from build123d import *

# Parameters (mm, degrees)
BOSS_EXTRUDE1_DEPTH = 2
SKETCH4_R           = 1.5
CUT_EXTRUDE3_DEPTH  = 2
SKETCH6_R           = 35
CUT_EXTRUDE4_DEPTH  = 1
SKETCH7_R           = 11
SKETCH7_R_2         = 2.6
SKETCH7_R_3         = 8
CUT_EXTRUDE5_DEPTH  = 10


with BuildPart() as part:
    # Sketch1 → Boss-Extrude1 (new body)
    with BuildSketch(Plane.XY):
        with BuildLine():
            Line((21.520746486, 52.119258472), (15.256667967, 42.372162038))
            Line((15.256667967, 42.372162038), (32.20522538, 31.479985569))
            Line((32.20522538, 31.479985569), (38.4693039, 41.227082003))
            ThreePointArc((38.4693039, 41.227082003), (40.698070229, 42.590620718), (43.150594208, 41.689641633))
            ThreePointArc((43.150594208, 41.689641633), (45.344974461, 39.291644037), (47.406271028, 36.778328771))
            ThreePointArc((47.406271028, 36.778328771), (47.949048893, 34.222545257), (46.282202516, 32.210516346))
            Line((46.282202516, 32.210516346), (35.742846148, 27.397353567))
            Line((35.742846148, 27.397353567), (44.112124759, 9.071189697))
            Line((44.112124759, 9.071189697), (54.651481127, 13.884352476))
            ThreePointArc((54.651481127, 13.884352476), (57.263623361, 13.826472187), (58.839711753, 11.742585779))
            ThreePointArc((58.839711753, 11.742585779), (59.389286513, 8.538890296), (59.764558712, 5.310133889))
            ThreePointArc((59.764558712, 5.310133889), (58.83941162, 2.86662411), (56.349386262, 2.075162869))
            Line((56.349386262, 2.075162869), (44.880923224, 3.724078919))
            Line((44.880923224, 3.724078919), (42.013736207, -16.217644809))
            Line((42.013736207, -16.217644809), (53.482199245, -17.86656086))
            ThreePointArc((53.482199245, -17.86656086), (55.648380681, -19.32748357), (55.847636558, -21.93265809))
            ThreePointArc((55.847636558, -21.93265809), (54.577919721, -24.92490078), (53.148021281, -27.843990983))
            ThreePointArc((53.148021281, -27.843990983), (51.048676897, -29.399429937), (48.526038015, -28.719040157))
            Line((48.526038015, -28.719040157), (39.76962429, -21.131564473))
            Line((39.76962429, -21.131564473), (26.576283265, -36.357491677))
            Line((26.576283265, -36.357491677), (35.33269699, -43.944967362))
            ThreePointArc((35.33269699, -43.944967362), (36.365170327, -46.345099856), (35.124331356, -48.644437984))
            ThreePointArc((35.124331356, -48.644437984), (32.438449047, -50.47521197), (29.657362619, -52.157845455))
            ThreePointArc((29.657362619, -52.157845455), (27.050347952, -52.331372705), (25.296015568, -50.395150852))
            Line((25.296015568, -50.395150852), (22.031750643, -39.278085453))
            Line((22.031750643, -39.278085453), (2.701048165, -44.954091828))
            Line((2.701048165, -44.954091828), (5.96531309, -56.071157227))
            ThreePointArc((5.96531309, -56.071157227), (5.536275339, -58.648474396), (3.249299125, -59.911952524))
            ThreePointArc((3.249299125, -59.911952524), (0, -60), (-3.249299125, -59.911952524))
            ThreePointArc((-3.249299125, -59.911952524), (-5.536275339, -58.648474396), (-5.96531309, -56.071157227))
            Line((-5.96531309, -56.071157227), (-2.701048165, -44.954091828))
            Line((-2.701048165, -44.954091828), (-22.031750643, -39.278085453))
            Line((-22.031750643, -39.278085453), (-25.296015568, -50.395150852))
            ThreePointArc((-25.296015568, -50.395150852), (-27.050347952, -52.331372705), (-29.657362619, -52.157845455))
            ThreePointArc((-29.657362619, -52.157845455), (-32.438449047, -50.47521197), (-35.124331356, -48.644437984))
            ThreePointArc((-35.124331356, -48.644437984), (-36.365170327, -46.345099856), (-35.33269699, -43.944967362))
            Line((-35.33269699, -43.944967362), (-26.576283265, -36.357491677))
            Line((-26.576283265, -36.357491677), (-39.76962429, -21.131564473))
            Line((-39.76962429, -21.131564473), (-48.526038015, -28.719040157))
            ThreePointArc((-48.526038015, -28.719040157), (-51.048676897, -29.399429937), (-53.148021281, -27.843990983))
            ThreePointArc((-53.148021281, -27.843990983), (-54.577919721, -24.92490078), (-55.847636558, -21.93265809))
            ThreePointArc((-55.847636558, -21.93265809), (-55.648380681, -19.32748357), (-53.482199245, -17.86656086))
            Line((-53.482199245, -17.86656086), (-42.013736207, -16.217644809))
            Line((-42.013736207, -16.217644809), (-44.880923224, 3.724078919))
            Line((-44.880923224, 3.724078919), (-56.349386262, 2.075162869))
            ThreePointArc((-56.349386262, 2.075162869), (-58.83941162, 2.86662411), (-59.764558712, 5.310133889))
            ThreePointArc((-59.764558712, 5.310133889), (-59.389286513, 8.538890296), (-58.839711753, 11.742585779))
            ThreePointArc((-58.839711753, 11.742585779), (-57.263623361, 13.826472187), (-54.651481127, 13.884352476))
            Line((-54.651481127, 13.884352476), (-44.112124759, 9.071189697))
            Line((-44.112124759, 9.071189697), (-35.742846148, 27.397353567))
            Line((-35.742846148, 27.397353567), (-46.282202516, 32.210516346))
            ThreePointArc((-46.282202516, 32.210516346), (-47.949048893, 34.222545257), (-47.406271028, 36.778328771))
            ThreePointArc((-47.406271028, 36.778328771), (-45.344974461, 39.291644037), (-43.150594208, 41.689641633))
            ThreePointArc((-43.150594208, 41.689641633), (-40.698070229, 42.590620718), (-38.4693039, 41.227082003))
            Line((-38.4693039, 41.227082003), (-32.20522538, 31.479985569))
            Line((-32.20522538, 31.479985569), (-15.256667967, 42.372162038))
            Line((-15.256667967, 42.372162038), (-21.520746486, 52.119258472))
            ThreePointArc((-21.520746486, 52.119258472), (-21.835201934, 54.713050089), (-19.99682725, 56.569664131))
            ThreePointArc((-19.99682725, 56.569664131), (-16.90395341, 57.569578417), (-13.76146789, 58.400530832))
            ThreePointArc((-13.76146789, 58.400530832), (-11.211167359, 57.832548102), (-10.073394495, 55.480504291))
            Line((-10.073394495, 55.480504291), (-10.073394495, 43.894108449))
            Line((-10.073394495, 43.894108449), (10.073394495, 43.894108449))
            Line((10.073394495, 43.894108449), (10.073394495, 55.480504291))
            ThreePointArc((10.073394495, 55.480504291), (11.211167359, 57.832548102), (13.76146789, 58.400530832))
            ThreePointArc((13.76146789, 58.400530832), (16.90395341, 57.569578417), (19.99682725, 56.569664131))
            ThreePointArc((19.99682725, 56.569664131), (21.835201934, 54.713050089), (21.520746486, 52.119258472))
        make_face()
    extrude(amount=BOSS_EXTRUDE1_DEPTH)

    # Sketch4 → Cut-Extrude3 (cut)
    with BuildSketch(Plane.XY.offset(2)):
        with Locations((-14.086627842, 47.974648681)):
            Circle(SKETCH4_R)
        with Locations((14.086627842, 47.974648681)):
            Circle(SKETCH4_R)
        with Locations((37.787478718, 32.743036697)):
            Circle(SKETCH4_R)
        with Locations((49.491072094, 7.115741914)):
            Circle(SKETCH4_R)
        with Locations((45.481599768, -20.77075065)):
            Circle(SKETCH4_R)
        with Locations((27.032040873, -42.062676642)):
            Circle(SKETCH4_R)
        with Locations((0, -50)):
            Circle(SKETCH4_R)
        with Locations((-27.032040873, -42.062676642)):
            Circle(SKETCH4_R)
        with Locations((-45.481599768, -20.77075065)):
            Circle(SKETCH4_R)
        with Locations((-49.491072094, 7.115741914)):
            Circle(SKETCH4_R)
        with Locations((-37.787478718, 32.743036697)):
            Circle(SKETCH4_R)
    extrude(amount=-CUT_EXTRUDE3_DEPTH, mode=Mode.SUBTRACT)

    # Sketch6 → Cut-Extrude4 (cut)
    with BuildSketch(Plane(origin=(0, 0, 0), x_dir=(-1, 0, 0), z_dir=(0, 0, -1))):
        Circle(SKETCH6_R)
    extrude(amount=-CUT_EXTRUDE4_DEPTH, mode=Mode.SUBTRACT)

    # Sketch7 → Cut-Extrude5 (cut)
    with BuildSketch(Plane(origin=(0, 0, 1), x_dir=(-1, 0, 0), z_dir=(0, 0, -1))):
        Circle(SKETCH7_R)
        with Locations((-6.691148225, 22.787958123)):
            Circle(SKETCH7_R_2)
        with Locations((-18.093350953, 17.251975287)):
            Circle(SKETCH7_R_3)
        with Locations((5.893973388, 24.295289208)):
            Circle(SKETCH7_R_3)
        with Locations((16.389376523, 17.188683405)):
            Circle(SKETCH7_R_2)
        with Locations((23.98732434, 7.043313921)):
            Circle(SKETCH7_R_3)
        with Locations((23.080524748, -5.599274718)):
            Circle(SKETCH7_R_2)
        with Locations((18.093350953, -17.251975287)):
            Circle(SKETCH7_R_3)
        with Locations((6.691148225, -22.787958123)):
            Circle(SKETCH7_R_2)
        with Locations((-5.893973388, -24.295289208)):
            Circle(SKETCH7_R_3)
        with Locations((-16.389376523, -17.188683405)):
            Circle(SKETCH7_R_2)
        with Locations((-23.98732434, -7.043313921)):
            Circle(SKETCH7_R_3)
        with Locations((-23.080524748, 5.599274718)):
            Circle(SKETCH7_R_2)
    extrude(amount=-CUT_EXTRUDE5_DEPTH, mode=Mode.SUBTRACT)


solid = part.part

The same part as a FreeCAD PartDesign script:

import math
import FreeCAD as App
import Part
import Sketcher
from FreeCAD import Vector
Q = App.Units.Quantity

doc = App.newDocument("Part")
body = doc.addObject("PartDesign::Body", "Body")

sketch1 = doc.addObject("Sketcher::SketchObject", "Sketch")
body.addObject(sketch1)
sketch1.AttachmentSupport = (doc.XY_Plane, [""])
sketch1.MapMode = "FlatFace"
sketch1.addGeometry(Part.LineSegment(Vector(15.3, 42.4, 0), Vector(21.5, 52.1, 0)), False)
sketch1.addGeometry(Part.ArcOfCircle(Part.Circle(Vector(19, 53.7, 0), Vector(0, 0, 1), 3), math.radians(-33), math.radians(71)), False)
sketch1.addGeometry(Part.ArcOfCircle(Part.Circle(Vector(0, 0, 0), Vector(0, 0, 1), 60), math.radians(70.53), math.radians(76.74)), False)
sketch1.addGeometry(Part.ArcOfCircle(Part.Circle(Vector(13.1, 55.5, 0), Vector(0, 0, 1), 3), math.radians(77), math.radians(180)), False)
sketch1.addGeometry(Part.LineSegment(Vector(10.1, 55.5, 0), Vector(10.1, 43.9, 0)), False)
sketch1.addGeometry(Part.LineSegment(Vector(10.1, 43.9, 0), Vector(-10.1, 43.9, 0)), False)
sketch1.addGeometry(Part.LineSegment(Vector(-10.1, 43.9, 0), Vector(-10.1, 55.5, 0)), False)
sketch1.addGeometry(Part.ArcOfCircle(Part.Circle(Vector(-13.1, 55.5, 0), Vector(0, 0, 1), 3), math.radians(0), math.radians(103)), False)
sketch1.addGeometry(Part.ArcOfCircle(Part.Circle(Vector(0, 0, 0), Vector(0, 0, 1), 60), math.radians(103.26), math.radians(109.47)), False)
sketch1.addGeometry(Part.ArcOfCircle(Part.Circle(Vector(-19, 53.7, 0), Vector(0, 0, 1), 3), math.radians(109), math.radians(213)), False)
sketch1.addGeometry(Part.LineSegment(Vector(-21.5, 52.1, 0), Vector(-15.3, 42.4, 0)), False)
sketch1.addGeometry(Part.LineSegment(Vector(-15.3, 42.4, 0), Vector(-32.2, 31.5, 0)), False)
sketch1.addGeometry(Part.LineSegment(Vector(-32.2, 31.5, 0), Vector(-38.5, 41.2, 0)), False)
sketch1.addGeometry(Part.ArcOfCircle(Part.Circle(Vector(-41, 39.6, 0), Vector(0, 0, 1), 3), math.radians(33), math.radians(136)), False)
sketch1.addGeometry(Part.ArcOfCircle(Part.Circle(Vector(0, 0, 0), Vector(0, 0, 1), 60), math.radians(135.99), math.radians(142.2)), False)
sketch1.addGeometry(Part.ArcOfCircle(Part.Circle(Vector(-45, 34.9, 0), Vector(0, 0, 1), 3), math.radians(142), math.radians(245)), False)
sketch1.addGeometry(Part.LineSegment(Vector(-46.3, 32.2, 0), Vector(-35.7, 27.4, 0)), False)
sketch1.addGeometry(Part.LineSegment(Vector(-35.7, 27.4, 0), Vector(-44.1, 9.1, 0)), False)
sketch1.addGeometry(Part.LineSegment(Vector(-44.1, 9.1, 0), Vector(-54.7, 13.9, 0)), False)
sketch1.addGeometry(Part.ArcOfCircle(Part.Circle(Vector(-55.9, 11.2, 0), Vector(0, 0, 1), 3), math.radians(65), math.radians(169)), False)
sketch1.addGeometry(Part.ArcOfCircle(Part.Circle(Vector(0, 0, 0), Vector(0, 0, 1), 60), math.radians(168.71), math.radians(174.92)), False)
sketch1.addGeometry(Part.ArcOfCircle(Part.Circle(Vector(-56.8, 5, 0), Vector(0, 0, 1), 3), math.radians(175), math.radians(278)), False)
sketch1.addGeometry(Part.LineSegment(Vector(-56.3, 2.1, 0), Vector(-44.9, 3.7, 0)), False)
sketch1.addGeometry(Part.LineSegment(Vector(-44.9, 3.7, 0), Vector(-42, -16.2, 0)), False)
sketch1.addGeometry(Part.LineSegment(Vector(-42, -16.2, 0), Vector(-53.5, -17.9, 0)), False)
sketch1.addGeometry(Part.ArcOfCircle(Part.Circle(Vector(-53.1, -20.8, 0), Vector(0, 0, 1), 3), math.radians(98), math.radians(201)), False)
sketch1.addGeometry(Part.ArcOfCircle(Part.Circle(Vector(0, 0, 0), Vector(0, 0, 1), 60), math.radians(-158.56), math.radians(-152.35)), False)
sketch1.addGeometry(Part.ArcOfCircle(Part.Circle(Vector(-50.5, -26.5, 0), Vector(0, 0, 1), 3), math.radians(-152), math.radians(-49)), False)
sketch1.addGeometry(Part.LineSegment(Vector(-48.5, -28.7, 0), Vector(-39.8, -21.1, 0)), False)
sketch1.addGeometry(Part.LineSegment(Vector(-39.8, -21.1, 0), Vector(-26.6, -36.4, 0)), False)
sketch1.addGeometry(Part.LineSegment(Vector(-26.6, -36.4, 0), Vector(-35.3, -43.9, 0)), False)
sketch1.addGeometry(Part.ArcOfCircle(Part.Circle(Vector(-33.4, -46.2, 0), Vector(0, 0, 1), 3), math.radians(131), math.radians(234)), False)
sketch1.addGeometry(Part.ArcOfCircle(Part.Circle(Vector(0, 0, 0), Vector(0, 0, 1), 60), math.radians(-125.83), math.radians(-119.62)), False)
sketch1.addGeometry(Part.ArcOfCircle(Part.Circle(Vector(-28.2, -49.5, 0), Vector(0, 0, 1), 3), math.radians(-120), math.radians(-16)), False)
sketch1.addGeometry(Part.LineSegment(Vector(-25.3, -50.4, 0), Vector(-22, -39.3, 0)), False)
sketch1.addGeometry(Part.LineSegment(Vector(-22, -39.3, 0), Vector(-2.7, -45, 0)), False)
sketch1.addGeometry(Part.LineSegment(Vector(-2.7, -45, 0), Vector(-6, -56.1, 0)), False)
sketch1.addGeometry(Part.ArcOfCircle(Part.Circle(Vector(-3.1, -56.9, 0), Vector(0, 0, 1), 3), math.radians(164), math.radians(267)), False)
sketch1.addGeometry(Part.ArcOfCircle(Part.Circle(Vector(0, 0, 0), Vector(0, 0, 1), 60), math.radians(-93.1), math.radians(-86.9)), False)
sketch1.addGeometry(Part.ArcOfCircle(Part.Circle(Vector(3.1, -56.9, 0), Vector(0, 0, 1), 3), math.radians(-87), math.radians(16)), False)
sketch1.addGeometry(Part.LineSegment(Vector(6, -56.1, 0), Vector(2.7, -45, 0)), False)
sketch1.addGeometry(Part.LineSegment(Vector(2.7, -45, 0), Vector(22, -39.3, 0)), False)
sketch1.addGeometry(Part.LineSegment(Vector(22, -39.3, 0), Vector(25.3, -50.4, 0)), False)
sketch1.addGeometry(Part.ArcOfCircle(Part.Circle(Vector(28.2, -49.5, 0), Vector(0, 0, 1), 3), math.radians(-164), math.radians(-60)), False)
sketch1.addGeometry(Part.ArcOfCircle(Part.Circle(Vector(0, 0, 0), Vector(0, 0, 1), 60), math.radians(-60.38), math.radians(-54.17)), False)
sketch1.addGeometry(Part.ArcOfCircle(Part.Circle(Vector(33.4, -46.2, 0), Vector(0, 0, 1), 3), math.radians(-54), math.radians(49)), False)
sketch1.addGeometry(Part.LineSegment(Vector(35.3, -43.9, 0), Vector(26.6, -36.4, 0)), False)
sketch1.addGeometry(Part.LineSegment(Vector(26.6, -36.4, 0), Vector(39.8, -21.1, 0)), False)
sketch1.addGeometry(Part.LineSegment(Vector(39.8, -21.1, 0), Vector(48.5, -28.7, 0)), False)
sketch1.addGeometry(Part.ArcOfCircle(Part.Circle(Vector(50.5, -26.5, 0), Vector(0, 0, 1), 3), math.radians(-131), math.radians(-28)), False)
sketch1.addGeometry(Part.ArcOfCircle(Part.Circle(Vector(0, 0, 0), Vector(0, 0, 1), 60), math.radians(-27.65), math.radians(-21.44)), False)
sketch1.addGeometry(Part.ArcOfCircle(Part.Circle(Vector(53.1, -20.8, 0), Vector(0, 0, 1), 3), math.radians(-21), math.radians(82)), False)
sketch1.addGeometry(Part.LineSegment(Vector(53.5, -17.9, 0), Vector(42, -16.2, 0)), False)
sketch1.addGeometry(Part.LineSegment(Vector(42, -16.2, 0), Vector(44.9, 3.7, 0)), False)
sketch1.addGeometry(Part.LineSegment(Vector(44.9, 3.7, 0), Vector(56.3, 2.1, 0)), False)
sketch1.addGeometry(Part.ArcOfCircle(Part.Circle(Vector(56.8, 5, 0), Vector(0, 0, 1), 3), math.radians(-98), math.radians(5)), False)
sketch1.addGeometry(Part.ArcOfCircle(Part.Circle(Vector(0, 0, 0), Vector(0, 0, 1), 60), math.radians(5.08), math.radians(11.29)), False)
sketch1.addGeometry(Part.ArcOfCircle(Part.Circle(Vector(55.9, 11.2, 0), Vector(0, 0, 1), 3), math.radians(11), math.radians(115)), False)
sketch1.addGeometry(Part.LineSegment(Vector(54.7, 13.9, 0), Vector(44.1, 9.1, 0)), False)
sketch1.addGeometry(Part.LineSegment(Vector(44.1, 9.1, 0), Vector(35.7, 27.4, 0)), False)
sketch1.addGeometry(Part.LineSegment(Vector(35.7, 27.4, 0), Vector(46.3, 32.2, 0)), False)
sketch1.addGeometry(Part.ArcOfCircle(Part.Circle(Vector(45, 34.9, 0), Vector(0, 0, 1), 3), math.radians(-65), math.radians(38)), False)
sketch1.addGeometry(Part.ArcOfCircle(Part.Circle(Vector(0, 0, 0), Vector(0, 0, 1), 60), math.radians(37.8), math.radians(44.01)), False)
sketch1.addGeometry(Part.ArcOfCircle(Part.Circle(Vector(41, 39.6, 0), Vector(0, 0, 1), 3), math.radians(44), math.radians(147)), False)
sketch1.addGeometry(Part.LineSegment(Vector(38.5, 41.2, 0), Vector(32.2, 31.5, 0)), False)
sketch1.addGeometry(Part.LineSegment(Vector(32.2, 31.5, 0), Vector(15.3, 42.4, 0)), False)
sketch1.addConstraint(Sketcher.Constraint("Tangent", 0, 2, 1, 1))
sketch1.addConstraint(Sketcher.Constraint("Tangent", 1, 2, 2, 1))
sketch1.addConstraint(Sketcher.Constraint("Tangent", 2, 2, 3, 1))
sketch1.addConstraint(Sketcher.Constraint("Tangent", 3, 2, 4, 1))
sketch1.addConstraint(Sketcher.Constraint("Coincident", 4, 2, 5, 1))
sketch1.addConstraint(Sketcher.Constraint("Coincident", 5, 2, 6, 1))
sketch1.addConstraint(Sketcher.Constraint("Tangent", 6, 2, 7, 1))
sketch1.addConstraint(Sketcher.Constraint("Tangent", 7, 2, 8, 1))
sketch1.addConstraint(Sketcher.Constraint("Tangent", 8, 2, 9, 1))
sketch1.addConstraint(Sketcher.Constraint("Tangent", 9, 2, 10, 1))
sketch1.addConstraint(Sketcher.Constraint("Coincident", 10, 2, 11, 1))
sketch1.addConstraint(Sketcher.Constraint("Coincident", 11, 2, 12, 1))
sketch1.addConstraint(Sketcher.Constraint("Tangent", 12, 2, 13, 1))
sketch1.addConstraint(Sketcher.Constraint("Tangent", 13, 2, 14, 1))
sketch1.addConstraint(Sketcher.Constraint("Tangent", 14, 2, 15, 1))
sketch1.addConstraint(Sketcher.Constraint("Tangent", 15, 2, 16, 1))
sketch1.addConstraint(Sketcher.Constraint("Coincident", 16, 2, 17, 1))
sketch1.addConstraint(Sketcher.Constraint("Coincident", 17, 2, 18, 1))
sketch1.addConstraint(Sketcher.Constraint("Tangent", 18, 2, 19, 1))
sketch1.addConstraint(Sketcher.Constraint("Tangent", 19, 2, 20, 1))
sketch1.addConstraint(Sketcher.Constraint("Tangent", 20, 2, 21, 1))
sketch1.addConstraint(Sketcher.Constraint("Tangent", 21, 2, 22, 1))
sketch1.addConstraint(Sketcher.Constraint("Coincident", 22, 2, 23, 1))
sketch1.addConstraint(Sketcher.Constraint("Coincident", 23, 2, 24, 1))
sketch1.addConstraint(Sketcher.Constraint("Tangent", 24, 2, 25, 1))
sketch1.addConstraint(Sketcher.Constraint("Tangent", 25, 2, 26, 1))
sketch1.addConstraint(Sketcher.Constraint("Tangent", 26, 2, 27, 1))
sketch1.addConstraint(Sketcher.Constraint("Tangent", 27, 2, 28, 1))
sketch1.addConstraint(Sketcher.Constraint("Coincident", 28, 2, 29, 1))
sketch1.addConstraint(Sketcher.Constraint("Coincident", 29, 2, 30, 1))
sketch1.addConstraint(Sketcher.Constraint("Tangent", 30, 2, 31, 1))
sketch1.addConstraint(Sketcher.Constraint("Tangent", 31, 2, 32, 1))
sketch1.addConstraint(Sketcher.Constraint("Tangent", 32, 2, 33, 1))
sketch1.addConstraint(Sketcher.Constraint("Tangent", 33, 2, 34, 1))
sketch1.addConstraint(Sketcher.Constraint("Coincident", 34, 2, 35, 1))
sketch1.addConstraint(Sketcher.Constraint("Coincident", 35, 2, 36, 1))
sketch1.addConstraint(Sketcher.Constraint("Tangent", 36, 2, 37, 1))
sketch1.addConstraint(Sketcher.Constraint("Tangent", 37, 2, 38, 1))
sketch1.addConstraint(Sketcher.Constraint("Tangent", 38, 2, 39, 1))
sketch1.addConstraint(Sketcher.Constraint("Tangent", 39, 2, 40, 1))
sketch1.addConstraint(Sketcher.Constraint("Coincident", 40, 2, 41, 1))
sketch1.addConstraint(Sketcher.Constraint("Coincident", 41, 2, 42, 1))
sketch1.addConstraint(Sketcher.Constraint("Tangent", 42, 2, 43, 1))
sketch1.addConstraint(Sketcher.Constraint("Tangent", 43, 2, 44, 1))
sketch1.addConstraint(Sketcher.Constraint("Tangent", 44, 2, 45, 1))
sketch1.addConstraint(Sketcher.Constraint("Tangent", 45, 2, 46, 1))
sketch1.addConstraint(Sketcher.Constraint("Coincident", 46, 2, 47, 1))
sketch1.addConstraint(Sketcher.Constraint("Coincident", 47, 2, 48, 1))
sketch1.addConstraint(Sketcher.Constraint("Tangent", 48, 2, 49, 1))
sketch1.addConstraint(Sketcher.Constraint("Tangent", 49, 2, 50, 1))
sketch1.addConstraint(Sketcher.Constraint("Tangent", 50, 2, 51, 1))
sketch1.addConstraint(Sketcher.Constraint("Tangent", 51, 2, 52, 1))
sketch1.addConstraint(Sketcher.Constraint("Coincident", 52, 2, 53, 1))
sketch1.addConstraint(Sketcher.Constraint("Coincident", 53, 2, 54, 1))
sketch1.addConstraint(Sketcher.Constraint("Tangent", 54, 2, 55, 1))
sketch1.addConstraint(Sketcher.Constraint("Tangent", 55, 2, 56, 1))
sketch1.addConstraint(Sketcher.Constraint("Tangent", 56, 2, 57, 1))
sketch1.addConstraint(Sketcher.Constraint("Tangent", 57, 2, 58, 1))
sketch1.addConstraint(Sketcher.Constraint("Coincident", 58, 2, 59, 1))
sketch1.addConstraint(Sketcher.Constraint("Coincident", 59, 2, 60, 1))
sketch1.addConstraint(Sketcher.Constraint("Tangent", 60, 2, 61, 1))
sketch1.addConstraint(Sketcher.Constraint("Tangent", 61, 2, 62, 1))
sketch1.addConstraint(Sketcher.Constraint("Tangent", 62, 2, 63, 1))
sketch1.addConstraint(Sketcher.Constraint("Tangent", 63, 2, 64, 1))
sketch1.addConstraint(Sketcher.Constraint("Coincident", 64, 2, 65, 1))
sketch1.addConstraint(Sketcher.Constraint("Coincident", 65, 2, 0, 1))
sketch1.addConstraint(Sketcher.Constraint("Vertical", 4))
sketch1.addConstraint(Sketcher.Constraint("Horizontal", 5))
sketch1.addConstraint(Sketcher.Constraint("Vertical", 6))
sketch1.addConstraint(Sketcher.Constraint("Coincident", 2, 3, -1, 1))
sketch1.addConstraint(Sketcher.Constraint("Coincident", 8, 3, -1, 1))
sketch1.addConstraint(Sketcher.Constraint("Coincident", 14, 3, -1, 1))
sketch1.addConstraint(Sketcher.Constraint("Coincident", 20, 3, -1, 1))
sketch1.addConstraint(Sketcher.Constraint("Coincident", 26, 3, -1, 1))
sketch1.addConstraint(Sketcher.Constraint("Coincident", 32, 3, -1, 1))
sketch1.addConstraint(Sketcher.Constraint("Coincident", 38, 3, -1, 1))
sketch1.addConstraint(Sketcher.Constraint("Coincident", 44, 3, -1, 1))
sketch1.addConstraint(Sketcher.Constraint("Coincident", 50, 3, -1, 1))
sketch1.addConstraint(Sketcher.Constraint("Coincident", 56, 3, -1, 1))
sketch1.addConstraint(Sketcher.Constraint("Coincident", 62, 3, -1, 1))
sketch1.addConstraint(Sketcher.Constraint("Equal", 1, 3))
sketch1.addConstraint(Sketcher.Constraint("Equal", 3, 7))
sketch1.addConstraint(Sketcher.Constraint("Equal", 2, 8))
sketch1.addConstraint(Sketcher.Constraint("Equal", 7, 9))
sketch1.addConstraint(Sketcher.Constraint("Equal", 9, 13))
sketch1.addConstraint(Sketcher.Constraint("Equal", 8, 14))
sketch1.addConstraint(Sketcher.Constraint("Equal", 13, 15))
sketch1.addConstraint(Sketcher.Constraint("Equal", 15, 19))
sketch1.addConstraint(Sketcher.Constraint("Equal", 14, 20))
sketch1.addConstraint(Sketcher.Constraint("Equal", 19, 21))
sketch1.addConstraint(Sketcher.Constraint("Equal", 21, 25))
sketch1.addConstraint(Sketcher.Constraint("Equal", 20, 26))
sketch1.addConstraint(Sketcher.Constraint("Equal", 25, 27))
sketch1.addConstraint(Sketcher.Constraint("Equal", 27, 31))
sketch1.addConstraint(Sketcher.Constraint("Equal", 26, 32))
sketch1.addConstraint(Sketcher.Constraint("Equal", 31, 33))
sketch1.addConstraint(Sketcher.Constraint("Equal", 33, 37))
sketch1.addConstraint(Sketcher.Constraint("Equal", 32, 38))
sketch1.addConstraint(Sketcher.Constraint("Equal", 37, 39))
sketch1.addConstraint(Sketcher.Constraint("Equal", 39, 43))
sketch1.addConstraint(Sketcher.Constraint("Equal", 38, 44))
sketch1.addConstraint(Sketcher.Constraint("Equal", 43, 45))
sketch1.addConstraint(Sketcher.Constraint("Equal", 45, 49))
sketch1.addConstraint(Sketcher.Constraint("Equal", 44, 50))
sketch1.addConstraint(Sketcher.Constraint("Equal", 49, 51))
sketch1.addConstraint(Sketcher.Constraint("Equal", 51, 55))
sketch1.addConstraint(Sketcher.Constraint("Equal", 50, 56))
sketch1.addConstraint(Sketcher.Constraint("Equal", 55, 57))
sketch1.addConstraint(Sketcher.Constraint("Equal", 57, 61))
sketch1.addConstraint(Sketcher.Constraint("Equal", 56, 62))
sketch1.addConstraint(Sketcher.Constraint("Equal", 61, 63))
sketch1.addConstraint(Sketcher.Constraint("Symmetric", 0, 2, 9, 2, -2))
sketch1.addConstraint(Sketcher.Constraint("Symmetric", 36, 2, 39, 2, -2))
sketch1.addConstraint(Sketcher.Constraint("Symmetric", 34, 2, 41, 2, -2))
sketch1.addConstraint(Sketcher.Constraint("Symmetric", 30, 2, 45, 2, -2))
sketch1.addConstraint(Sketcher.Constraint("Symmetric", 28, 2, 47, 2, -2))
sketch1.addConstraint(Sketcher.Constraint("Symmetric", 24, 2, 51, 2, -2))
sketch1.addConstraint(Sketcher.Constraint("Symmetric", 22, 2, 53, 2, -2))
sketch1.addConstraint(Sketcher.Constraint("Symmetric", 18, 2, 57, 2, -2))
sketch1.addConstraint(Sketcher.Constraint("Symmetric", 16, 2, 59, 2, -2))
sketch1.addConstraint(Sketcher.Constraint("Symmetric", 12, 2, 63, 2, -2))
sketch1.addConstraint(Sketcher.Constraint("Perpendicular", 10, 11))
sketch1.addConstraint(Sketcher.Constraint("Perpendicular", 11, 12))
sketch1.addConstraint(Sketcher.Constraint("Perpendicular", 16, 17))
sketch1.addConstraint(Sketcher.Constraint("Perpendicular", 17, 18))
sketch1.addConstraint(Sketcher.Constraint("Perpendicular", 22, 23))
sketch1.addConstraint(Sketcher.Constraint("Perpendicular", 23, 24))
sketch1.addConstraint(Sketcher.Constraint("Perpendicular", 28, 29))
sketch1.addConstraint(Sketcher.Constraint("Perpendicular", 29, 30))
sketch1.addConstraint(Sketcher.Constraint("Perpendicular", 34, 35))
sketch1.addConstraint(Sketcher.Constraint("Perpendicular", 35, 36))
sketch1.addConstraint(Sketcher.Constraint("Perpendicular", 40, 41))
sketch1.addConstraint(Sketcher.Constraint("Perpendicular", 41, 42))
sketch1.addConstraint(Sketcher.Constraint("Perpendicular", 46, 47))
sketch1.addConstraint(Sketcher.Constraint("Perpendicular", 47, 48))
sketch1.addConstraint(Sketcher.Constraint("Perpendicular", 52, 53))
sketch1.addConstraint(Sketcher.Constraint("Perpendicular", 53, 54))
sketch1.addConstraint(Sketcher.Constraint("Perpendicular", 58, 59))
sketch1.addConstraint(Sketcher.Constraint("Perpendicular", 59, 60))
sketch1.addConstraint(Sketcher.Constraint("Perpendicular", 64, 65))
sketch1.addConstraint(Sketcher.Constraint("Horizontal", 3, 3, 7, 3))
sketch1.addConstraint(Sketcher.Constraint("Horizontal", 11, 2, 64, 2))
sketch1.addConstraint(Sketcher.Constraint("Equal", 10, 12))
sketch1.addConstraint(Sketcher.Constraint("Equal", 12, 16))
sketch1.addConstraint(Sketcher.Constraint("Equal", 11, 17))
sketch1.addConstraint(Sketcher.Constraint("Equal", 16, 18))
sketch1.addConstraint(Sketcher.Constraint("Equal", 18, 22))
sketch1.addConstraint(Sketcher.Constraint("Equal", 17, 23))
sketch1.addConstraint(Sketcher.Constraint("Equal", 22, 24))
sketch1.addConstraint(Sketcher.Constraint("Equal", 24, 28))
sketch1.addConstraint(Sketcher.Constraint("Equal", 23, 29))
sketch1.addConstraint(Sketcher.Constraint("Equal", 28, 30))
sketch1.addConstraint(Sketcher.Constraint("Equal", 30, 34))
sketch1.addConstraint(Sketcher.Constraint("Equal", 29, 35))
sketch1.addConstraint(Sketcher.Constraint("Equal", 34, 36))
sketch1.addConstraint(Sketcher.Constraint("Radius", 1, Q("3 mm")))
sketch1.addConstraint(Sketcher.Constraint("Radius", 2, Q("60 mm")))
sketch1.addConstraint(Sketcher.Constraint("DistanceX", 5, 2, 5, 1, Q("20.146789 mm")))
sketch1.addConstraint(Sketcher.Constraint("DistanceX", 24, 2, -1, 1, Q("53.482199 mm")))
sketch1.addConstraint(Sketcher.Constraint("DistanceX", 37, 2, -1, 1, Q("3.249299 mm")))
sketch1.addConstraint(Sketcher.Constraint("Distance", 11, Q("20.146789 mm")))
sketch1.addConstraint(Sketcher.Constraint("DistanceY", 4, 2, 4, 1, Q("11.586396 mm")))
sketch1.addConstraint(Sketcher.Constraint("DistanceY", -1, 1, 1, 3, Q("53.741181 mm")))
sketch1.addConstraint(Sketcher.Constraint("DistanceX", 27, 3, -1, 1, Q("50.49062 mm")))
sketch1.addConstraint(Sketcher.Constraint("DistanceX", 14, 2, -1, 1, Q("47.406271 mm")))
sketch1.addConstraint(Sketcher.Constraint("DistanceY", -1, 1, 17, 2, Q("9.07119 mm")))
pad1 = doc.addObject("PartDesign::Pad", "Pad")
body.addObject(pad1)
pad1.Profile = sketch1
pad1.Length = 2

sketch2 = doc.addObject("Sketcher::SketchObject", "Sketch001")
body.addObject(sketch2)
sketch2.AttachmentSupport = (doc.XY_Plane, [""])
sketch2.MapMode = "FlatFace"
sketch2.AttachmentOffset = App.Placement(Vector(0, 0, 2), App.Rotation())
sketch2.addGeometry(Part.Circle(Vector(-14.1, 48, 0), Vector(0, 0, 1), 1.5), False)
sketch2.addGeometry(Part.Circle(Vector(14.1, 48, 0), Vector(0, 0, 1), 1.5), False)
sketch2.addGeometry(Part.Circle(Vector(37.8, 32.7, 0), Vector(0, 0, 1), 1.5), False)
sketch2.addGeometry(Part.Circle(Vector(49.5, 7.1, 0), Vector(0, 0, 1), 1.5), False)
sketch2.addGeometry(Part.Circle(Vector(45.5, -20.8, 0), Vector(0, 0, 1), 1.5), False)
sketch2.addGeometry(Part.Circle(Vector(27, -42.1, 0), Vector(0, 0, 1), 1.5), False)
sketch2.addGeometry(Part.Circle(Vector(0, -50, 0), Vector(0, 0, 1), 1.5), False)
sketch2.addGeometry(Part.Circle(Vector(-27, -42.1, 0), Vector(0, 0, 1), 1.5), False)
sketch2.addGeometry(Part.Circle(Vector(-45.5, -20.8, 0), Vector(0, 0, 1), 1.5), False)
sketch2.addGeometry(Part.Circle(Vector(-49.5, 7.1, 0), Vector(0, 0, 1), 1.5), False)
sketch2.addGeometry(Part.Circle(Vector(-37.8, 32.7, 0), Vector(0, 0, 1), 1.5), False)
sketch2.addConstraint(Sketcher.Constraint("Equal", 0, 1))
sketch2.addConstraint(Sketcher.Constraint("Equal", 1, 2))
sketch2.addConstraint(Sketcher.Constraint("Equal", 2, 3))
sketch2.addConstraint(Sketcher.Constraint("Equal", 3, 4))
sketch2.addConstraint(Sketcher.Constraint("Equal", 4, 5))
sketch2.addConstraint(Sketcher.Constraint("Equal", 5, 6))
sketch2.addConstraint(Sketcher.Constraint("Equal", 6, 7))
sketch2.addConstraint(Sketcher.Constraint("Equal", 7, 8))
sketch2.addConstraint(Sketcher.Constraint("Equal", 8, 9))
sketch2.addConstraint(Sketcher.Constraint("Equal", 9, 10))
sketch2.addConstraint(Sketcher.Constraint("Symmetric", 0, 3, 1, 3, -2))
sketch2.addConstraint(Sketcher.Constraint("Symmetric", 5, 3, 7, 3, -2))
sketch2.addConstraint(Sketcher.Constraint("Symmetric", 4, 3, 8, 3, -2))
sketch2.addConstraint(Sketcher.Constraint("Symmetric", 3, 3, 9, 3, -2))
sketch2.addConstraint(Sketcher.Constraint("Symmetric", 2, 3, 10, 3, -2))
sketch2.addConstraint(Sketcher.Constraint("PointOnObject", 6, 3, -2))
sketch2.addConstraint(Sketcher.Constraint("Diameter", 0, Q("3 mm")))
sketch2.addConstraint(Sketcher.Constraint("DistanceY", 6, 3, -1, 1, Q("50 mm")))
sketch2.addConstraint(Sketcher.Constraint("DistanceX", -1, 1, 4, 3, Q("45.4816 mm")))
sketch2.addConstraint(Sketcher.Constraint("DistanceX", 0, 3, 3, 3, Q("63.5777 mm")))
sketch2.addConstraint(Sketcher.Constraint("DistanceY", 4, 3, 1, 3, Q("68.745399 mm")))
sketch2.addConstraint(Sketcher.Constraint("DistanceY", -1, 1, 0, 3, Q("47.974649 mm")))
sketch2.addConstraint(Sketcher.Constraint("DistanceX", -1, 1, 2, 3, Q("37.787479 mm")))
sketch2.addConstraint(Sketcher.Constraint("DistanceY", -1, 1, 3, 3, Q("7.115742 mm")))
sketch2.addConstraint(Sketcher.Constraint("DistanceX", -1, 1, 5, 3, Q("27.032041 mm")))
sketch2.addConstraint(Sketcher.Constraint("DistanceX", 1, 3, 2, 3, Q("23.700851 mm")))
sketch2.addConstraint(Sketcher.Constraint("DistanceY", 2, 3, 1, 3, Q("15.231612 mm")))
sketch2.addConstraint(Sketcher.Constraint("DistanceY", 5, 3, 3, 3, Q("49.178419 mm")))
pocket1 = doc.addObject("PartDesign::Pocket", "Pocket")
body.addObject(pocket1)
pocket1.Profile = sketch2
pocket1.Length = 2

sketch3 = doc.addObject("Sketcher::SketchObject", "Sketch002")
body.addObject(sketch3)
sketch3.AttachmentSupport = (doc.XY_Plane, [""])
sketch3.MapMode = "FlatFace"
sketch3.addGeometry(Part.Circle(Vector(0, 0, 0), Vector(0, 0, 1), 35), False)
sketch3.addConstraint(Sketcher.Constraint("Coincident", 0, 3, -1, 1))
sketch3.addConstraint(Sketcher.Constraint("Diameter", 0, Q("70 mm")))
pocket2 = doc.addObject("PartDesign::Pocket", "Pocket001")
body.addObject(pocket2)
pocket2.Profile = sketch3
pocket2.Length = 1
pocket2.Reversed = True

sketch4 = doc.addObject("Sketcher::SketchObject", "Sketch003")
body.addObject(sketch4)
sketch4.AttachmentSupport = (doc.XY_Plane, [""])
sketch4.MapMode = "FlatFace"
sketch4.AttachmentOffset = App.Placement(Vector(0, 0, 1), App.Rotation())
sketch4.addGeometry(Part.Circle(Vector(0, 0, 0), Vector(0, 0, 1), 11), False)
sketch4.addGeometry(Part.Circle(Vector(6.7, 22.8, 0), Vector(0, 0, 1), 2.6), False)
sketch4.addGeometry(Part.Circle(Vector(18.1, 17.3, 0), Vector(0, 0, 1), 8), False)
sketch4.addGeometry(Part.Circle(Vector(-5.9, 24.3, 0), Vector(0, 0, 1), 8), False)
sketch4.addGeometry(Part.Circle(Vector(-16.4, 17.2, 0), Vector(0, 0, 1), 2.6), False)
sketch4.addGeometry(Part.Circle(Vector(-24, 7, 0), Vector(0, 0, 1), 8), False)
sketch4.addGeometry(Part.Circle(Vector(-23.1, -5.6, 0), Vector(0, 0, 1), 2.6), False)
sketch4.addGeometry(Part.Circle(Vector(-18.1, -17.3, 0), Vector(0, 0, 1), 8), False)
sketch4.addGeometry(Part.Circle(Vector(-6.7, -22.8, 0), Vector(0, 0, 1), 2.6), False)
sketch4.addGeometry(Part.Circle(Vector(5.9, -24.3, 0), Vector(0, 0, 1), 8), False)
sketch4.addGeometry(Part.Circle(Vector(16.4, -17.2, 0), Vector(0, 0, 1), 2.6), False)
sketch4.addGeometry(Part.Circle(Vector(24, -7, 0), Vector(0, 0, 1), 8), False)
sketch4.addGeometry(Part.Circle(Vector(23.1, 5.6, 0), Vector(0, 0, 1), 2.6), False)
sketch4.addConstraint(Sketcher.Constraint("Coincident", 0, 3, -1, 1))
sketch4.addConstraint(Sketcher.Constraint("Equal", 2, 3))
sketch4.addConstraint(Sketcher.Constraint("Equal", 1, 4))
sketch4.addConstraint(Sketcher.Constraint("Equal", 3, 5))
sketch4.addConstraint(Sketcher.Constraint("Equal", 4, 6))
sketch4.addConstraint(Sketcher.Constraint("Equal", 5, 7))
sketch4.addConstraint(Sketcher.Constraint("Equal", 6, 8))
sketch4.addConstraint(Sketcher.Constraint("Equal", 7, 9))
sketch4.addConstraint(Sketcher.Constraint("Equal", 8, 10))
sketch4.addConstraint(Sketcher.Constraint("Equal", 9, 11))
sketch4.addConstraint(Sketcher.Constraint("Equal", 10, 12))
sketch4.addConstraint(Sketcher.Constraint("Symmetric", 2, 3, 7, 3, -1, 1))
sketch4.addConstraint(Sketcher.Constraint("Symmetric", 1, 3, 8, 3, -1, 1))
sketch4.addConstraint(Sketcher.Constraint("Symmetric", 3, 3, 9, 3, -1, 1))
sketch4.addConstraint(Sketcher.Constraint("Symmetric", 4, 3, 10, 3, -1, 1))
sketch4.addConstraint(Sketcher.Constraint("Symmetric", 5, 3, 11, 3, -1, 1))
sketch4.addConstraint(Sketcher.Constraint("Symmetric", 6, 3, 12, 3, -1, 1))
sketch4.addConstraint(Sketcher.Constraint("Diameter", 0, Q("22 mm")))
sketch4.addConstraint(Sketcher.Constraint("Diameter", 2, Q("16 mm")))
sketch4.addConstraint(Sketcher.Constraint("Diameter", 1, Q("5.2 mm")))
sketch4.addConstraint(Sketcher.Constraint("DistanceX", 5, 3, 6, 3, Q("0.9068 mm")))
sketch4.addConstraint(Sketcher.Constraint("DistanceY", 7, 3, 6, 3, Q("11.652701 mm")))
sketch4.addConstraint(Sketcher.Constraint("DistanceX", 6, 3, 9, 3, Q("28.974498 mm")))
sketch4.addConstraint(Sketcher.Constraint("DistanceX", -1, 1, 1, 3, Q("6.691148 mm")))
sketch4.addConstraint(Sketcher.Constraint("DistanceY", -1, 1, 1, 3, Q("22.787958 mm")))
sketch4.addConstraint(Sketcher.Constraint("DistanceX", -1, 1, 2, 3, Q("18.093351 mm")))
sketch4.addConstraint(Sketcher.Constraint("DistanceY", -1, 1, 3, 3, Q("24.295289 mm")))
sketch4.addConstraint(Sketcher.Constraint("DistanceX", 3, 3, 1, 3, Q("12.585122 mm")))
sketch4.addConstraint(Sketcher.Constraint("DistanceY", 4, 3, 2, 3, Q("0.063292 mm")))
sketch4.addConstraint(Sketcher.Constraint("DistanceY", 5, 3, 4, 3, Q("10.145369 mm")))
sketch4.addConstraint(Sketcher.Constraint("DistanceY", 6, 3, 5, 3, Q("12.642589 mm")))
sketch4.addConstraint(Sketcher.Constraint("DistanceX", 6, 3, 4, 3, Q("6.691148 mm")))
pocket3 = doc.addObject("PartDesign::Pocket", "Pocket002")
body.addObject(pocket3)
pocket3.Profile = sketch4
pocket3.Length = 10
pocket3.Reversed = True

doc.recompute()
